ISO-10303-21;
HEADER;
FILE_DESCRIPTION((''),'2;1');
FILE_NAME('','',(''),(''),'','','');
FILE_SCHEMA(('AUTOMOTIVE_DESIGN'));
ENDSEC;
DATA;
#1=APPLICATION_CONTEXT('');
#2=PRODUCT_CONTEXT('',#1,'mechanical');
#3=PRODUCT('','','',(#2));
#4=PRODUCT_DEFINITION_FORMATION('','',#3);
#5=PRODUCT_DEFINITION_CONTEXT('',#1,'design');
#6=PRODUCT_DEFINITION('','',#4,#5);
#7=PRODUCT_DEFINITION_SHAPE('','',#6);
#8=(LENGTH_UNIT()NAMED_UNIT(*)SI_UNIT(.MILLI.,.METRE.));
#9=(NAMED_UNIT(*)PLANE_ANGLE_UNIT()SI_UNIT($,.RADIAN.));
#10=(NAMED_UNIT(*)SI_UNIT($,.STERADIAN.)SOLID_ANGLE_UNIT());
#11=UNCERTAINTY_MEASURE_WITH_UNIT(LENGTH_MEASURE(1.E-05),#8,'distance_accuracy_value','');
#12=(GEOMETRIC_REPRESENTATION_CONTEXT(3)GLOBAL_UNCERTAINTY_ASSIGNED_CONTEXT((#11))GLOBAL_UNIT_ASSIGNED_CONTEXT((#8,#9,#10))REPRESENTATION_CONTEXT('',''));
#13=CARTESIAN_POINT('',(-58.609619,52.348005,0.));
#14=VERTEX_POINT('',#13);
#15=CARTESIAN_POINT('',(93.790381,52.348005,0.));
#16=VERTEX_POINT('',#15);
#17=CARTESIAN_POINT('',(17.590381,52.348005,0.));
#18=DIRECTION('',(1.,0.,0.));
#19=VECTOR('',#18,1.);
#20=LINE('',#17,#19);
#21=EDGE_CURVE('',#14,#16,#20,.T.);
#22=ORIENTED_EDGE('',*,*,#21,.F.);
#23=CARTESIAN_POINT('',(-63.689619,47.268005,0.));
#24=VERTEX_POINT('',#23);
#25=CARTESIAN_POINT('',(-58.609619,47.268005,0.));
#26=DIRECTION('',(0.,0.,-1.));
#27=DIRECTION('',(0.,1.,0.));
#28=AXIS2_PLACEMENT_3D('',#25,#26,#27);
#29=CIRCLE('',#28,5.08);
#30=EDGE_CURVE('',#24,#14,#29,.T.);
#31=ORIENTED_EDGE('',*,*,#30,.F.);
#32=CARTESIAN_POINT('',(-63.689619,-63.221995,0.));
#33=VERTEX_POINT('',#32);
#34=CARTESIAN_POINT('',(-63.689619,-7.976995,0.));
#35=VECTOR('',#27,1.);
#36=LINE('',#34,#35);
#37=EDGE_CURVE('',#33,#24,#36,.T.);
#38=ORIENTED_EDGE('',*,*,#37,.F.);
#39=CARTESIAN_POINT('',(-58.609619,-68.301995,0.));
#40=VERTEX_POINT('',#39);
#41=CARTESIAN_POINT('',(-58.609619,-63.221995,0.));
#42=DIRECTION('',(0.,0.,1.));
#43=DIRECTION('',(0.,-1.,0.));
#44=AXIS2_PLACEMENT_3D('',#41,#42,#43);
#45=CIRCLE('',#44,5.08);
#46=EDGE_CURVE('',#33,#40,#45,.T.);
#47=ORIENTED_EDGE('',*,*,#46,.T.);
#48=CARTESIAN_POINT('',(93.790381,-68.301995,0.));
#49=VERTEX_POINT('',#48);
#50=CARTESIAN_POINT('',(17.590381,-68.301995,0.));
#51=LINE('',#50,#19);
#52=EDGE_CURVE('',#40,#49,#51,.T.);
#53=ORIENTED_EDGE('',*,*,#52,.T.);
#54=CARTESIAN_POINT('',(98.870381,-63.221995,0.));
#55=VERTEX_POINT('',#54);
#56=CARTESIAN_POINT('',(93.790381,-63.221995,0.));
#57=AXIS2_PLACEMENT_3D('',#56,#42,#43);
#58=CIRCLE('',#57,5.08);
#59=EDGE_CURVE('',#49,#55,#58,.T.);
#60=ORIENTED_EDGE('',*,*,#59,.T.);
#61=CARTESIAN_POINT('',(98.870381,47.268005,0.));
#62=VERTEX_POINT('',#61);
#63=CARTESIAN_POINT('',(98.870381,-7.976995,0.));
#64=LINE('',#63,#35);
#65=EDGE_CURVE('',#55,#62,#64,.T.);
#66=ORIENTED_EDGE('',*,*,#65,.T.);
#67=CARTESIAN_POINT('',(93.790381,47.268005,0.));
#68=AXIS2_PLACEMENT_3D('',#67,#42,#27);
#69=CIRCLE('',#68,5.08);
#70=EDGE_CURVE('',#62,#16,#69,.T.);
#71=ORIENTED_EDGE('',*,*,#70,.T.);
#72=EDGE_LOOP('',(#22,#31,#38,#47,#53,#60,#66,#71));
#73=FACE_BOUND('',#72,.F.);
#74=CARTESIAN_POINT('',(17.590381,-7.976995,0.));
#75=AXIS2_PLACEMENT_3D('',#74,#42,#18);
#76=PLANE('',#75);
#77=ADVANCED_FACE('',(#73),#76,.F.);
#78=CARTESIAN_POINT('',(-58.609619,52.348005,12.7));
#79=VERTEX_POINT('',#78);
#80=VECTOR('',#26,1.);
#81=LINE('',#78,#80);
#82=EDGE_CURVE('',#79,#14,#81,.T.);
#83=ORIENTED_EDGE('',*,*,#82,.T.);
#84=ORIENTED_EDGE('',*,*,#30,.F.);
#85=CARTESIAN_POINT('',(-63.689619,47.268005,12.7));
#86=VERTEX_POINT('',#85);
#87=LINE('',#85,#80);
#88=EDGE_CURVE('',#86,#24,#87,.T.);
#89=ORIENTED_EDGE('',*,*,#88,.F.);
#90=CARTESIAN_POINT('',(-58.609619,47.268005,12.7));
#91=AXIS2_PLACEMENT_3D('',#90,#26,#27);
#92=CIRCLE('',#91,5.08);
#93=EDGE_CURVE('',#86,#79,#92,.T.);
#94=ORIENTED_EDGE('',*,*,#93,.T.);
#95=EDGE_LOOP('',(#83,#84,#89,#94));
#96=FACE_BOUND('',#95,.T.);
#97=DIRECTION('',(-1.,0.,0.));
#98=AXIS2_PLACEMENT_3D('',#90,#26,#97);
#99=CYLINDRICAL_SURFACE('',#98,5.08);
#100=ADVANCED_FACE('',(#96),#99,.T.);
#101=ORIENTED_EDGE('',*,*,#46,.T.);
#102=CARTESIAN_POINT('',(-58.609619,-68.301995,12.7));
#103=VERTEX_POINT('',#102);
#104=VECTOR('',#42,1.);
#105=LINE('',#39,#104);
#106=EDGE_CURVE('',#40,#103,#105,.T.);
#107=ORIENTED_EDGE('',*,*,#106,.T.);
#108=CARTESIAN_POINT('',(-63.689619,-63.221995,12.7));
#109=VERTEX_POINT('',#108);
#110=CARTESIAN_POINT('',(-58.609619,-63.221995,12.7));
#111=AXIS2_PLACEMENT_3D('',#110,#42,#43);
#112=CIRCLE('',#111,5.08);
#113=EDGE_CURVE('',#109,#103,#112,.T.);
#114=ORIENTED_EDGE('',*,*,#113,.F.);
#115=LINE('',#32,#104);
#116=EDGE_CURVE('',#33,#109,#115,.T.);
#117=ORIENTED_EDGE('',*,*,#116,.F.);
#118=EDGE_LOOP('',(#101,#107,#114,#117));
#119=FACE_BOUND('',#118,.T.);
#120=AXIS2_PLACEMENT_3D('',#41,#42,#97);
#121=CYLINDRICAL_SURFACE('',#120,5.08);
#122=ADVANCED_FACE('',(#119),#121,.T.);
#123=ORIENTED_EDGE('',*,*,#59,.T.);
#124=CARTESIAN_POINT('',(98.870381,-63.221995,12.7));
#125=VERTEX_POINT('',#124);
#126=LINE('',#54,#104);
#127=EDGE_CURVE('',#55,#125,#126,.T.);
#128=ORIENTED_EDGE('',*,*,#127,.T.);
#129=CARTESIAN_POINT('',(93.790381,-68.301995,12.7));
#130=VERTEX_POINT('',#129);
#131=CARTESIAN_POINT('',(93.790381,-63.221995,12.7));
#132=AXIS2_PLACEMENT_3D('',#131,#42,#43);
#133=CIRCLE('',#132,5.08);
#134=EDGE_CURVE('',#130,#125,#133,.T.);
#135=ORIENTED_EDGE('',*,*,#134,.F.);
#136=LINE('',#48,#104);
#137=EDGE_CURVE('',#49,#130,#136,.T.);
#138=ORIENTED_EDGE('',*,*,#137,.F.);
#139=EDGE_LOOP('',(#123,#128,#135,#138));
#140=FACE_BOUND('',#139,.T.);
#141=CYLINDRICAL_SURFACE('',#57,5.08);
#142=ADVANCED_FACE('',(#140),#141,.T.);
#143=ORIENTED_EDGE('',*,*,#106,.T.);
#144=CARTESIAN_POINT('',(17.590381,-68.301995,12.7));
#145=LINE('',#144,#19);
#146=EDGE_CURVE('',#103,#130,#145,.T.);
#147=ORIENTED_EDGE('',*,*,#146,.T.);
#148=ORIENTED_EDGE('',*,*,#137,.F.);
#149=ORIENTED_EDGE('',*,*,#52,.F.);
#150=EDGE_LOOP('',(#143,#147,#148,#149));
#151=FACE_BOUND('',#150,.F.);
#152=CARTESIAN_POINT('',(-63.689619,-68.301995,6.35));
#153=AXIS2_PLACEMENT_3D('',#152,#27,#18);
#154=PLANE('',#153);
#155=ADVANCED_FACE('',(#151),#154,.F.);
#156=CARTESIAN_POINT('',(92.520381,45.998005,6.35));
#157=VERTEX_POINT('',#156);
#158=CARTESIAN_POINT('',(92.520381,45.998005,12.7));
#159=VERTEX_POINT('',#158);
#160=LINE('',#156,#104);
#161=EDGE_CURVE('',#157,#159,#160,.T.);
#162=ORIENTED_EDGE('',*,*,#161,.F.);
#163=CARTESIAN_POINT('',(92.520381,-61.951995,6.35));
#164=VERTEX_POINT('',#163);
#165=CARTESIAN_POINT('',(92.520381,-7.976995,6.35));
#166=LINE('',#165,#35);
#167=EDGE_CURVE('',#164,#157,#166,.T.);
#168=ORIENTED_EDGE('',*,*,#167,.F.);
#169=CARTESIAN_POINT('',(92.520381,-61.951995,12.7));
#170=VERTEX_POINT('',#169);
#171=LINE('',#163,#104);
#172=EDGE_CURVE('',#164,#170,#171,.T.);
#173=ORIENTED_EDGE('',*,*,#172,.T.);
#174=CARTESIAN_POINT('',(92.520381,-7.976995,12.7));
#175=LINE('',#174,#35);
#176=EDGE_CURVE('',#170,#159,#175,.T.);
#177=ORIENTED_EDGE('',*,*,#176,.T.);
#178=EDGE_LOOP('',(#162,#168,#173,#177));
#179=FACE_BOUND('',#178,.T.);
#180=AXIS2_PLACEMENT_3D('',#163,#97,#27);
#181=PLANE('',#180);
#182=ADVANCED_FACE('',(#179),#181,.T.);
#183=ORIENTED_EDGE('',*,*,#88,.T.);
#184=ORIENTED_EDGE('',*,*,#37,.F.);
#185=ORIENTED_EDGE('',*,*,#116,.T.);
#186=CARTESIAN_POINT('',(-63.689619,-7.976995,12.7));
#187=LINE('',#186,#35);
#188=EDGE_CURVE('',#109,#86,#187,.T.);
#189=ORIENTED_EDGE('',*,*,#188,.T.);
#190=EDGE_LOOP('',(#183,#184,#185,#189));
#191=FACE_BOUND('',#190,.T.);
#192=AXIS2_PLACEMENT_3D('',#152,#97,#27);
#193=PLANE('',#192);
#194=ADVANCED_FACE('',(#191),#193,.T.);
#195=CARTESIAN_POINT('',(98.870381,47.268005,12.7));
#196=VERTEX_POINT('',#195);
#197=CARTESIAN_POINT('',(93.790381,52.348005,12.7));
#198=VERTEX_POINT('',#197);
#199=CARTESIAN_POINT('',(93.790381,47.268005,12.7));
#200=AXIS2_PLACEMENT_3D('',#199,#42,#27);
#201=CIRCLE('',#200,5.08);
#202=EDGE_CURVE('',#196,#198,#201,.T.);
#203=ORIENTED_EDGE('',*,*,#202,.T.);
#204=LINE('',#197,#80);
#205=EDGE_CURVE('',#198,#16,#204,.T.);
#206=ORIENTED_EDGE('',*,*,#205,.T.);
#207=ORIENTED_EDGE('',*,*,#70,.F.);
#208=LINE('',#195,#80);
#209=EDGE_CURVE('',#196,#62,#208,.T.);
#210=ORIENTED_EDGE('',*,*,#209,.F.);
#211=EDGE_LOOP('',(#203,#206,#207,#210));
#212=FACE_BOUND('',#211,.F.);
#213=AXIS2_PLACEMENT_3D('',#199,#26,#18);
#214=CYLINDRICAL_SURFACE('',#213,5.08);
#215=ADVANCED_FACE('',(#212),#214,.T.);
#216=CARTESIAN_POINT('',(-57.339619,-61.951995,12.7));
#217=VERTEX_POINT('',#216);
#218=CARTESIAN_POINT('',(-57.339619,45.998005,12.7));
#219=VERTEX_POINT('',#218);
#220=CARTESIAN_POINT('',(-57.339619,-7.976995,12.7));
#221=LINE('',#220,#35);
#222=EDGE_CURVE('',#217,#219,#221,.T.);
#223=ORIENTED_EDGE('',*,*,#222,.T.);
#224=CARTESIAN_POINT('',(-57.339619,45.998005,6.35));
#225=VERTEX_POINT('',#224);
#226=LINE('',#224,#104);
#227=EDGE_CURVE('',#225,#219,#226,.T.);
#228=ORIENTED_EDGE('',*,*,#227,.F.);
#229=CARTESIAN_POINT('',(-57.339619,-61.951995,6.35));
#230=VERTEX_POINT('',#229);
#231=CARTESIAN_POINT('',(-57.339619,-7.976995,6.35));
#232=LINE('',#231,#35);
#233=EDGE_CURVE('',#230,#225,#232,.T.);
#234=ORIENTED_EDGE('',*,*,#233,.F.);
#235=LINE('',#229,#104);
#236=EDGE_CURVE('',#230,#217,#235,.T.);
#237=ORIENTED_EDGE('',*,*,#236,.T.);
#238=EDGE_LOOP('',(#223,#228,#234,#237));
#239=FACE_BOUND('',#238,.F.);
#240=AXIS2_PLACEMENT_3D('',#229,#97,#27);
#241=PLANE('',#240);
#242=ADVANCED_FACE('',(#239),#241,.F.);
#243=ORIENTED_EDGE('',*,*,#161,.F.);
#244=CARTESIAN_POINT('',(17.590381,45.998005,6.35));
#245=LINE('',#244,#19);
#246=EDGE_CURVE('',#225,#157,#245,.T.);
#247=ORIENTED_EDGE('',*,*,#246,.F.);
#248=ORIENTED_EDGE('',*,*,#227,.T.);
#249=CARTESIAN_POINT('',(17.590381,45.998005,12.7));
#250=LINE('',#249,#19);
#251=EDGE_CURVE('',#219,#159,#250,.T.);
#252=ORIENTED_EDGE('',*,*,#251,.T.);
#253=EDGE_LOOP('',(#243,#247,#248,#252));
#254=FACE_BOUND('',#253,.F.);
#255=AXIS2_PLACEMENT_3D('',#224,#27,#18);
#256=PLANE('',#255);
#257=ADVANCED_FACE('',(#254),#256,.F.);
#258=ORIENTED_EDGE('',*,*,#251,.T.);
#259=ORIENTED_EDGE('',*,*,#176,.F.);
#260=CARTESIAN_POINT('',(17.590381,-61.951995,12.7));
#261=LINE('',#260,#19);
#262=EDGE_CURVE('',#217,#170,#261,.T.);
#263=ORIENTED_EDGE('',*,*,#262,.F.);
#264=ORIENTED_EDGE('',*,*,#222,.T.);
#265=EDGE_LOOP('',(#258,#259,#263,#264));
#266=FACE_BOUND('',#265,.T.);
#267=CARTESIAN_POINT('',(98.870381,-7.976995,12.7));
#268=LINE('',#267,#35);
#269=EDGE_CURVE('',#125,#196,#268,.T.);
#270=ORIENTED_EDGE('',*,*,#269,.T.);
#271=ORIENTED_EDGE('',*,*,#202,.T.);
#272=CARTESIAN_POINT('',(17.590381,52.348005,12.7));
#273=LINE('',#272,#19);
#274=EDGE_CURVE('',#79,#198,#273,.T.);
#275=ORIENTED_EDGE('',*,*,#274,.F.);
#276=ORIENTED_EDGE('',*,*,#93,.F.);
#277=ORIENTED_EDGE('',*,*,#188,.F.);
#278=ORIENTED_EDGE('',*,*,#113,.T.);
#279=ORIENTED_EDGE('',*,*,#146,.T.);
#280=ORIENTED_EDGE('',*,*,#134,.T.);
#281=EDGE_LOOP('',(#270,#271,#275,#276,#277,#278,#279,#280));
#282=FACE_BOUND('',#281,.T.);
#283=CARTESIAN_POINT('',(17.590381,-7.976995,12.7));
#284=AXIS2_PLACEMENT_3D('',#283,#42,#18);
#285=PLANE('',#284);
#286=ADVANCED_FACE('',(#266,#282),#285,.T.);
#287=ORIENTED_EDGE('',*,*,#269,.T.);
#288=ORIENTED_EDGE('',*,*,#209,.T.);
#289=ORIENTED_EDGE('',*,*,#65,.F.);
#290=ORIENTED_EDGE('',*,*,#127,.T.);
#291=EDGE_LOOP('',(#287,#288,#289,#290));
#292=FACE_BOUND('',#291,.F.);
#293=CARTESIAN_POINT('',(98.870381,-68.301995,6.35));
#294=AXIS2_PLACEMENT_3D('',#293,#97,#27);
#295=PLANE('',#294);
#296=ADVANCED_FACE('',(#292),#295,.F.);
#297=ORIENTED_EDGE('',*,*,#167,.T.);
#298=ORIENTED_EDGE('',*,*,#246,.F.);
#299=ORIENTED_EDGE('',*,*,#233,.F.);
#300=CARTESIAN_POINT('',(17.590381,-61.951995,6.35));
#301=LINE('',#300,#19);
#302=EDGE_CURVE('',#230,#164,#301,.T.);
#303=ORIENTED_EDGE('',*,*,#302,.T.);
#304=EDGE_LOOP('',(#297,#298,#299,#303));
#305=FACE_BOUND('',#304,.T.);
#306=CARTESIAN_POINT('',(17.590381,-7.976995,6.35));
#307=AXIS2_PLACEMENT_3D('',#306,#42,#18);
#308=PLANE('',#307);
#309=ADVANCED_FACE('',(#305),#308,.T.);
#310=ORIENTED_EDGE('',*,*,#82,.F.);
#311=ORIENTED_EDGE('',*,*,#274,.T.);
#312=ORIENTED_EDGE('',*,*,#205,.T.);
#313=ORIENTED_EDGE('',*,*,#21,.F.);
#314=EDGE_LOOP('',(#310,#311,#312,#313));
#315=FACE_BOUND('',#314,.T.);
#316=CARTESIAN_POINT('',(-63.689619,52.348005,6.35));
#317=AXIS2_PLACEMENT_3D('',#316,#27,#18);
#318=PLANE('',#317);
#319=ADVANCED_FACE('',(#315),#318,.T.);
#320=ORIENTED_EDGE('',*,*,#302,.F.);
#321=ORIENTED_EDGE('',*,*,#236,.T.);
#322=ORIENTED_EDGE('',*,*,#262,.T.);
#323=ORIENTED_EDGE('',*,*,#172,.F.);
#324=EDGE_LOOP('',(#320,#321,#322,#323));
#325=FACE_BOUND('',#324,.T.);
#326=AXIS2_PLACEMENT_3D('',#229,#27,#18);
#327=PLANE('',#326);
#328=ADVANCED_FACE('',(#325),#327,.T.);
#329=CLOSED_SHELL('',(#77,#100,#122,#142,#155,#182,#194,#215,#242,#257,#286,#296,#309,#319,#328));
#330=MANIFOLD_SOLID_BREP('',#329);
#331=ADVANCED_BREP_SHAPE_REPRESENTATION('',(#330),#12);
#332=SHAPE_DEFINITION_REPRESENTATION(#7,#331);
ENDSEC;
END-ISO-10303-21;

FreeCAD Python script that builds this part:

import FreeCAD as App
import Part
import Sketcher

V = App.Vector
Q = App.Units.Quantity


def edges_at(feature, points):
    """Names of the edges that pass closest to the given points."""
    edges = feature.Shape.Edges
    near = lambda p: min(range(len(edges)), key=lambda i: edges[i].distToShape(Part.Vertex(*p))[0])
    return sorted({f"Edge{near(p) + 1}" for p in points})

doc = App.newDocument("Part")
body = doc.addObject("PartDesign::Body", "Body")

sketch1 = body.newObject("Sketcher::SketchObject", "Sketch")
sketch1.AttachmentSupport = (doc.getObject("XY_Plane"), [""])
sketch1.MapMode = "FlatFace"
sketch1.addGeometry(Part.LineSegment(V(-64, 52, 0), V(-64, -68, 0)), False)
sketch1.addGeometry(Part.LineSegment(V(-64, -68, 0), V(99, -68, 0)), False)
sketch1.addGeometry(Part.LineSegment(V(99, -68, 0), V(99, 52, 0)), False)
sketch1.addGeometry(Part.LineSegment(V(99, 52, 0), V(-64, 52, 0)), False)
sketch1.addConstraint(Sketcher.Constraint("Coincident", 0, 2, 1, 1))
sketch1.addConstraint(Sketcher.Constraint("Coincident", 1, 2, 2, 1))
sketch1.addConstraint(Sketcher.Constraint("Coincident", 2, 2, 3, 1))
sketch1.addConstraint(Sketcher.Constraint("Coincident", 3, 2, 0, 1))
sketch1.addConstraint(Sketcher.Constraint("Vertical", 0))
sketch1.addConstraint(Sketcher.Constraint("Horizontal", 1))
sketch1.addConstraint(Sketcher.Constraint("Vertical", 2))
sketch1.addConstraint(Sketcher.Constraint("Horizontal", 3))
sketch1.addConstraint(Sketcher.Constraint("DistanceX", 1, 1, 1, 2, Q("6.4 in")))
sketch1.addConstraint(Sketcher.Constraint("DistanceY", 0, 2, 0, 1, Q("4.75 in")))
sketch1.addConstraint(Sketcher.Constraint("DistanceX", 0, 2, -1, 1, 63.689619))
sketch1.addConstraint(Sketcher.Constraint("DistanceY", 0, 2, -1, 1, 68.301995))
pad1 = body.newObject("PartDesign::Pad", "Pad")
pad1.Profile = sketch1
pad1.Length = Q("0.25 in")

sketch2 = body.newObject("Sketcher::SketchObject", "Sketch001")
sketch2.AttachmentSupport = (doc.getObject("XY_Plane"), [""])
sketch2.MapMode = "FlatFace"
sketch2.AttachmentOffset = App.Placement(V(0, 0, 0.25 * 25.4), App.Rotation())
sketch2.addGeometry(Part.LineSegment(V(-64, 52, 0), V(-64, -68, 0)), False)
sketch2.addGeometry(Part.LineSegment(V(-64, -68, 0), V(99, -68, 0)), False)
sketch2.addGeometry(Part.LineSegment(V(99, -68, 0), V(99, 52, 0)), False)
sketch2.addGeometry(Part.LineSegment(V(99, 52, 0), V(-64, 52, 0)), False)
sketch2.addGeometry(Part.LineSegment(V(93, -62, 0), V(-57, -62, 0)), False)
sketch2.addGeometry(Part.LineSegment(V(-57, -62, 0), V(-57, 46, 0)), False)
sketch2.addGeometry(Part.LineSegment(V(-57, 46, 0), V(93, 46, 0)), False)
sketch2.addGeometry(Part.LineSegment(V(93, 46, 0), V(93, -62, 0)), False)
sketch2.addConstraint(Sketcher.Constraint("Coincident", 0, 2, 1, 1))
sketch2.addConstraint(Sketcher.Constraint("Coincident", 1, 2, 2, 1))
sketch2.addConstraint(Sketcher.Constraint("Coincident", 2, 2, 3, 1))
sketch2.addConstraint(Sketcher.Constraint("Coincident", 3, 2, 0, 1))
sketch2.addConstraint(Sketcher.Constraint("Coincident", 4, 2, 5, 1))
sketch2.addConstraint(Sketcher.Constraint("Coincident", 5, 2, 6, 1))
sketch2.addConstraint(Sketcher.Constraint("Coincident", 6, 2, 7, 1))
sketch2.addConstraint(Sketcher.Constraint("Coincident", 7, 2, 4, 1))
sketch2.addConstraint(Sketcher.Constraint("Vertical", 0))
sketch2.addConstraint(Sketcher.Constraint("Horizontal", 1))
sketch2.addConstraint(Sketcher.Constraint("Vertical", 2))
sketch2.addConstraint(Sketcher.Constraint("Horizontal", 3))
sketch2.addConstraint(Sketcher.Constraint("Horizontal", 4))
sketch2.addConstraint(Sketcher.Constraint("Vertical", 5))
sketch2.addConstraint(Sketcher.Constraint("Horizontal", 6))
sketch2.addConstraint(Sketcher.Constraint("Vertical", 7))
sketch2.addConstraint(Sketcher.Constraint("DistanceX", 1, 1, 1, 2, Q("6.4 in")))
sketch2.addConstraint(Sketcher.Constraint("DistanceX", 4, 2, 4, 1, Q("5.9 in")))
sketch2.addConstraint(Sketcher.Constraint("DistanceY", 0, 2, 0, 1, Q("4.75 in")))
sketch2.addConstraint(Sketcher.Constraint("DistanceY", 5, 1, 5, 2, Q("4.25 in")))
sketch2.addConstraint(Sketcher.Constraint("DistanceY", 4, 2, 3, 2, Q("4.5 in")))
sketch2.addConstraint(Sketcher.Constraint("DistanceX", 0, 2, 4, 2, Q("0.25 in")))
sketch2.addConstraint(Sketcher.Constraint("DistanceX", 0, 2, -1, 1, 63.689619))
sketch2.addConstraint(Sketcher.Constraint("DistanceY", 0, 2, -1, 1, 68.301995))
pad2 = body.newObject("PartDesign::Pad", "Pad001")
pad2.Profile = sketch2
pad2.Length = Q("0.25 in")
doc.recompute()

fillet = body.newObject("PartDesign::Fillet", "Fillet")
fillet.Base = (pad2, edges_at(pad2, [
    (98.87, -68.302, 6.35),
    (98.87, 52.348, 6.35),
    (-63.69, 52.348, 6.35),
    (-63.69, -68.302, 6.35),
]))
fillet.Radius = Q("0.2 in")

doc.recompute()
